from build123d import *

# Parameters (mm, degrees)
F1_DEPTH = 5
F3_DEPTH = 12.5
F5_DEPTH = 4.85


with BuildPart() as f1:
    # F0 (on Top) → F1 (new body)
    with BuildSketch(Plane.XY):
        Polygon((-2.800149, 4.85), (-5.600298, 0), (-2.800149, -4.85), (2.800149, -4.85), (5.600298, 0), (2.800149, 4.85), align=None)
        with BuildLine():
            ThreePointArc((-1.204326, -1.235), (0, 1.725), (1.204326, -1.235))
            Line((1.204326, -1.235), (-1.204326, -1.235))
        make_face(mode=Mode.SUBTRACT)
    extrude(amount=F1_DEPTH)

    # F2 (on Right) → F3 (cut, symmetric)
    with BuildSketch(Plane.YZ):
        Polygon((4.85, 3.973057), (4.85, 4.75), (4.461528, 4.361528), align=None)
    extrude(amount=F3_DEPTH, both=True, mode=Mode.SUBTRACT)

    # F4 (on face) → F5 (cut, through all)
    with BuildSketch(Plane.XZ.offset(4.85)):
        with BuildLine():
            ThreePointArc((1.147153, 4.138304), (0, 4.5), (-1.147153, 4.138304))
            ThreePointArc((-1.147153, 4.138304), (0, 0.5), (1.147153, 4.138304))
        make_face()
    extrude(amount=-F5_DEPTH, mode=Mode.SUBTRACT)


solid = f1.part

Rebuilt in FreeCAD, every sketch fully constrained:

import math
import FreeCAD as App
import Part
import Sketcher

V = App.Vector
Q = App.Units.Quantity

doc = App.newDocument("Part")
body = doc.addObject("PartDesign::Body", "Body")

# Sketch on XY plane
sketch1 = body.newObject("Sketcher::SketchObject", "Sketch")
sketch1.AttachmentSupport = (doc.getObject("XY_Plane"), [""])
sketch1.MapMode = "FlatFace"
sketch1.addGeometry(Part.LineSegment(V(-2.8, 4.8, 0), V(-5.6, 0, 0)), False)
sketch1.addGeometry(Part.LineSegment(V(-5.6, 0, 0), V(-2.8, -4.8, 0)), False)
sketch1.addGeometry(Part.LineSegment(V(-2.8, -4.8, 0), V(2.8, -4.8, 0)), False)
sketch1.addGeometry(Part.LineSegment(V(2.8, -4.8, 0), V(5.6, 0, 0)), False)
sketch1.addGeometry(Part.LineSegment(V(5.6, 0, 0), V(2.8, 4.8, 0)), False)
sketch1.addGeometry(Part.LineSegment(V(2.8, 4.8, 0), V(-2.8, 4.8, 0)), False)
sketch1.addGeometry(Part.LineSegment(V(1.2, -1.2, 0), V(-1.2, -1.2, 0)), False)
sketch1.addGeometry(Part.ArcOfCircle(Part.Circle(V(0, 0, 0), V(0, 0, 1), 1.7), math.radians(-46), math.radians(226)), False)
sketch1.addConstraint(Sketcher.Constraint("Coincident", 0, 2, 1, 1))
sketch1.addConstraint(Sketcher.Constraint("Coincident", 1, 2, 2, 1))
sketch1.addConstraint(Sketcher.Constraint("Coincident", 2, 2, 3, 1))
sketch1.addConstraint(Sketcher.Constraint("Coincident", 3, 2, 4, 1))
sketch1.addConstraint(Sketcher.Constraint("Coincident", 4, 2, 5, 1))
sketch1.addConstraint(Sketcher.Constraint("Coincident", 5, 2, 0, 1))
sketch1.addConstraint(Sketcher.Constraint("Coincident", 6, 1, 7, 1))
sketch1.addConstraint(Sketcher.Constraint("Coincident", 7, 2, 6, 2))
sketch1.addConstraint(Sketcher.Constraint("Horizontal", 2))
sketch1.addConstraint(Sketcher.Constraint("Horizontal", 5))
sketch1.addConstraint(Sketcher.Constraint("Horizontal", 6))
sketch1.addConstraint(Sketcher.Constraint("Coincident", 7, 3, -1, 1))
sketch1.addConstraint(Sketcher.Constraint("Symmetric", 0, 2, 3, 2, -1, 1))
sketch1.addConstraint(Sketcher.Constraint("Symmetric", 1, 2, 4, 2, -1, 1))
sketch1.addConstraint(Sketcher.Constraint("PointOnObject", 0, 2, -1))
sketch1.addConstraint(Sketcher.Constraint("Parallel", 0, 3))
sketch1.addConstraint(Sketcher.Constraint("Vertical", 2, 2, 4, 2))
sketch1.addConstraint(Sketcher.Constraint("Angle", 0, Q("-120.000002 deg")))
sketch1.addConstraint(Sketcher.Constraint("Radius", 7, Q("1.725 mm")))
sketch1.addConstraint(Sketcher.Constraint("DistanceY", 2, 2, 4, 2, Q("9.7 mm")))
sketch1.addConstraint(Sketcher.Constraint("DistanceX", 2, 1, 2, 2, Q("5.600298 mm")))
sketch1.addConstraint(Sketcher.Constraint("DistanceY", 6, 1, -1, 1, Q("1.235 mm")))
pad1 = body.newObject("PartDesign::Pad", "Pad")
pad1.Profile = sketch1
pad1.Length = 5

# Sketch on YZ plane
sketch2 = body.newObject("Sketcher::SketchObject", "Sketch001")
sketch2.AttachmentSupport = (doc.getObject("YZ_Plane"), [""])
sketch2.MapMode = "FlatFace"
sketch2.addGeometry(Part.LineSegment(V(4.8, 4, 0), V(4.8, 4.8, 0)), False)
sketch2.addGeometry(Part.LineSegment(V(4.8, 4.8, 0), V(4.5, 4.4, 0)), False)
sketch2.addGeometry(Part.LineSegment(V(4.5, 4.4, 0), V(4.8, 4, 0)), False)
sketch2.addConstraint(Sketcher.Constraint("Coincident", 0, 2, 1, 1))
sketch2.addConstraint(Sketcher.Constraint("Coincident", 1, 2, 2, 1))
sketch2.addConstraint(Sketcher.Constraint("Coincident", 2, 2, 0, 1))
sketch2.addConstraint(Sketcher.Constraint("Vertical", 0))
sketch2.addConstraint(Sketcher.Constraint("Perpendicular", 1, 2))
sketch2.addConstraint(Sketcher.Constraint("Equal", 1, 2))
sketch2.addConstraint(Sketcher.Constraint("DistanceX", -1, 1, 0, 2, Q("4.85 mm")))
sketch2.addConstraint(Sketcher.Constraint("DistanceY", -1, 1, 0, 2, Q("4.75 mm")))
sketch2.addConstraint(Sketcher.Constraint("Distance", 2, Q("0.549382 mm")))
pocket1 = body.newObject("PartDesign::Pocket", "Pocket")
pocket1.Profile = sketch2
pocket1.Length = 25
pocket1.Midplane = True

# Sketch on XZ plane
sketch3 = body.newObject("Sketcher::SketchObject", "Sketch002")
sketch3.AttachmentSupport = (doc.getObject("XZ_Plane"), [""])
sketch3.MapMode = "FlatFace"
sketch3.AttachmentOffset = App.Placement(V(0, 0, 4.85), App.Rotation())
sketch3.addGeometry(Part.ArcOfCircle(Part.Circle(V(0, 2.5, 0), V(0, 0, 1), 2), math.radians(55), math.radians(125)), False)
sketch3.addGeometry(Part.ArcOfCircle(Part.Circle(V(0, 2.5, 0), V(0, 0, 1), 2), math.radians(125), math.radians(415)), False)
sketch3.addConstraint(Sketcher.Constraint("Tangent", 0, 1, 1, 2))
sketch3.addConstraint(Sketcher.Constraint("Coincident", 1, 1, 0, 2))
sketch3.addConstraint(Sketcher.Constraint("Symmetric", 0, 1, 1, 1, -2))
sketch3.addConstraint(Sketcher.Constraint("Radius", 0, Q("2 mm")))
sketch3.addConstraint(Sketcher.Constraint("DistanceY", -1, 1, 0, 3, Q("2.5 mm")))
sketch3.addConstraint(Sketcher.Constraint("DistanceX", -1, 1, 0, 1, Q("1.147153 mm")))
pocket2 = body.newObject("PartDesign::Pocket", "Pocket001")
pocket2.Profile = sketch3
pocket2.Length = 4.85

doc.recompute()
